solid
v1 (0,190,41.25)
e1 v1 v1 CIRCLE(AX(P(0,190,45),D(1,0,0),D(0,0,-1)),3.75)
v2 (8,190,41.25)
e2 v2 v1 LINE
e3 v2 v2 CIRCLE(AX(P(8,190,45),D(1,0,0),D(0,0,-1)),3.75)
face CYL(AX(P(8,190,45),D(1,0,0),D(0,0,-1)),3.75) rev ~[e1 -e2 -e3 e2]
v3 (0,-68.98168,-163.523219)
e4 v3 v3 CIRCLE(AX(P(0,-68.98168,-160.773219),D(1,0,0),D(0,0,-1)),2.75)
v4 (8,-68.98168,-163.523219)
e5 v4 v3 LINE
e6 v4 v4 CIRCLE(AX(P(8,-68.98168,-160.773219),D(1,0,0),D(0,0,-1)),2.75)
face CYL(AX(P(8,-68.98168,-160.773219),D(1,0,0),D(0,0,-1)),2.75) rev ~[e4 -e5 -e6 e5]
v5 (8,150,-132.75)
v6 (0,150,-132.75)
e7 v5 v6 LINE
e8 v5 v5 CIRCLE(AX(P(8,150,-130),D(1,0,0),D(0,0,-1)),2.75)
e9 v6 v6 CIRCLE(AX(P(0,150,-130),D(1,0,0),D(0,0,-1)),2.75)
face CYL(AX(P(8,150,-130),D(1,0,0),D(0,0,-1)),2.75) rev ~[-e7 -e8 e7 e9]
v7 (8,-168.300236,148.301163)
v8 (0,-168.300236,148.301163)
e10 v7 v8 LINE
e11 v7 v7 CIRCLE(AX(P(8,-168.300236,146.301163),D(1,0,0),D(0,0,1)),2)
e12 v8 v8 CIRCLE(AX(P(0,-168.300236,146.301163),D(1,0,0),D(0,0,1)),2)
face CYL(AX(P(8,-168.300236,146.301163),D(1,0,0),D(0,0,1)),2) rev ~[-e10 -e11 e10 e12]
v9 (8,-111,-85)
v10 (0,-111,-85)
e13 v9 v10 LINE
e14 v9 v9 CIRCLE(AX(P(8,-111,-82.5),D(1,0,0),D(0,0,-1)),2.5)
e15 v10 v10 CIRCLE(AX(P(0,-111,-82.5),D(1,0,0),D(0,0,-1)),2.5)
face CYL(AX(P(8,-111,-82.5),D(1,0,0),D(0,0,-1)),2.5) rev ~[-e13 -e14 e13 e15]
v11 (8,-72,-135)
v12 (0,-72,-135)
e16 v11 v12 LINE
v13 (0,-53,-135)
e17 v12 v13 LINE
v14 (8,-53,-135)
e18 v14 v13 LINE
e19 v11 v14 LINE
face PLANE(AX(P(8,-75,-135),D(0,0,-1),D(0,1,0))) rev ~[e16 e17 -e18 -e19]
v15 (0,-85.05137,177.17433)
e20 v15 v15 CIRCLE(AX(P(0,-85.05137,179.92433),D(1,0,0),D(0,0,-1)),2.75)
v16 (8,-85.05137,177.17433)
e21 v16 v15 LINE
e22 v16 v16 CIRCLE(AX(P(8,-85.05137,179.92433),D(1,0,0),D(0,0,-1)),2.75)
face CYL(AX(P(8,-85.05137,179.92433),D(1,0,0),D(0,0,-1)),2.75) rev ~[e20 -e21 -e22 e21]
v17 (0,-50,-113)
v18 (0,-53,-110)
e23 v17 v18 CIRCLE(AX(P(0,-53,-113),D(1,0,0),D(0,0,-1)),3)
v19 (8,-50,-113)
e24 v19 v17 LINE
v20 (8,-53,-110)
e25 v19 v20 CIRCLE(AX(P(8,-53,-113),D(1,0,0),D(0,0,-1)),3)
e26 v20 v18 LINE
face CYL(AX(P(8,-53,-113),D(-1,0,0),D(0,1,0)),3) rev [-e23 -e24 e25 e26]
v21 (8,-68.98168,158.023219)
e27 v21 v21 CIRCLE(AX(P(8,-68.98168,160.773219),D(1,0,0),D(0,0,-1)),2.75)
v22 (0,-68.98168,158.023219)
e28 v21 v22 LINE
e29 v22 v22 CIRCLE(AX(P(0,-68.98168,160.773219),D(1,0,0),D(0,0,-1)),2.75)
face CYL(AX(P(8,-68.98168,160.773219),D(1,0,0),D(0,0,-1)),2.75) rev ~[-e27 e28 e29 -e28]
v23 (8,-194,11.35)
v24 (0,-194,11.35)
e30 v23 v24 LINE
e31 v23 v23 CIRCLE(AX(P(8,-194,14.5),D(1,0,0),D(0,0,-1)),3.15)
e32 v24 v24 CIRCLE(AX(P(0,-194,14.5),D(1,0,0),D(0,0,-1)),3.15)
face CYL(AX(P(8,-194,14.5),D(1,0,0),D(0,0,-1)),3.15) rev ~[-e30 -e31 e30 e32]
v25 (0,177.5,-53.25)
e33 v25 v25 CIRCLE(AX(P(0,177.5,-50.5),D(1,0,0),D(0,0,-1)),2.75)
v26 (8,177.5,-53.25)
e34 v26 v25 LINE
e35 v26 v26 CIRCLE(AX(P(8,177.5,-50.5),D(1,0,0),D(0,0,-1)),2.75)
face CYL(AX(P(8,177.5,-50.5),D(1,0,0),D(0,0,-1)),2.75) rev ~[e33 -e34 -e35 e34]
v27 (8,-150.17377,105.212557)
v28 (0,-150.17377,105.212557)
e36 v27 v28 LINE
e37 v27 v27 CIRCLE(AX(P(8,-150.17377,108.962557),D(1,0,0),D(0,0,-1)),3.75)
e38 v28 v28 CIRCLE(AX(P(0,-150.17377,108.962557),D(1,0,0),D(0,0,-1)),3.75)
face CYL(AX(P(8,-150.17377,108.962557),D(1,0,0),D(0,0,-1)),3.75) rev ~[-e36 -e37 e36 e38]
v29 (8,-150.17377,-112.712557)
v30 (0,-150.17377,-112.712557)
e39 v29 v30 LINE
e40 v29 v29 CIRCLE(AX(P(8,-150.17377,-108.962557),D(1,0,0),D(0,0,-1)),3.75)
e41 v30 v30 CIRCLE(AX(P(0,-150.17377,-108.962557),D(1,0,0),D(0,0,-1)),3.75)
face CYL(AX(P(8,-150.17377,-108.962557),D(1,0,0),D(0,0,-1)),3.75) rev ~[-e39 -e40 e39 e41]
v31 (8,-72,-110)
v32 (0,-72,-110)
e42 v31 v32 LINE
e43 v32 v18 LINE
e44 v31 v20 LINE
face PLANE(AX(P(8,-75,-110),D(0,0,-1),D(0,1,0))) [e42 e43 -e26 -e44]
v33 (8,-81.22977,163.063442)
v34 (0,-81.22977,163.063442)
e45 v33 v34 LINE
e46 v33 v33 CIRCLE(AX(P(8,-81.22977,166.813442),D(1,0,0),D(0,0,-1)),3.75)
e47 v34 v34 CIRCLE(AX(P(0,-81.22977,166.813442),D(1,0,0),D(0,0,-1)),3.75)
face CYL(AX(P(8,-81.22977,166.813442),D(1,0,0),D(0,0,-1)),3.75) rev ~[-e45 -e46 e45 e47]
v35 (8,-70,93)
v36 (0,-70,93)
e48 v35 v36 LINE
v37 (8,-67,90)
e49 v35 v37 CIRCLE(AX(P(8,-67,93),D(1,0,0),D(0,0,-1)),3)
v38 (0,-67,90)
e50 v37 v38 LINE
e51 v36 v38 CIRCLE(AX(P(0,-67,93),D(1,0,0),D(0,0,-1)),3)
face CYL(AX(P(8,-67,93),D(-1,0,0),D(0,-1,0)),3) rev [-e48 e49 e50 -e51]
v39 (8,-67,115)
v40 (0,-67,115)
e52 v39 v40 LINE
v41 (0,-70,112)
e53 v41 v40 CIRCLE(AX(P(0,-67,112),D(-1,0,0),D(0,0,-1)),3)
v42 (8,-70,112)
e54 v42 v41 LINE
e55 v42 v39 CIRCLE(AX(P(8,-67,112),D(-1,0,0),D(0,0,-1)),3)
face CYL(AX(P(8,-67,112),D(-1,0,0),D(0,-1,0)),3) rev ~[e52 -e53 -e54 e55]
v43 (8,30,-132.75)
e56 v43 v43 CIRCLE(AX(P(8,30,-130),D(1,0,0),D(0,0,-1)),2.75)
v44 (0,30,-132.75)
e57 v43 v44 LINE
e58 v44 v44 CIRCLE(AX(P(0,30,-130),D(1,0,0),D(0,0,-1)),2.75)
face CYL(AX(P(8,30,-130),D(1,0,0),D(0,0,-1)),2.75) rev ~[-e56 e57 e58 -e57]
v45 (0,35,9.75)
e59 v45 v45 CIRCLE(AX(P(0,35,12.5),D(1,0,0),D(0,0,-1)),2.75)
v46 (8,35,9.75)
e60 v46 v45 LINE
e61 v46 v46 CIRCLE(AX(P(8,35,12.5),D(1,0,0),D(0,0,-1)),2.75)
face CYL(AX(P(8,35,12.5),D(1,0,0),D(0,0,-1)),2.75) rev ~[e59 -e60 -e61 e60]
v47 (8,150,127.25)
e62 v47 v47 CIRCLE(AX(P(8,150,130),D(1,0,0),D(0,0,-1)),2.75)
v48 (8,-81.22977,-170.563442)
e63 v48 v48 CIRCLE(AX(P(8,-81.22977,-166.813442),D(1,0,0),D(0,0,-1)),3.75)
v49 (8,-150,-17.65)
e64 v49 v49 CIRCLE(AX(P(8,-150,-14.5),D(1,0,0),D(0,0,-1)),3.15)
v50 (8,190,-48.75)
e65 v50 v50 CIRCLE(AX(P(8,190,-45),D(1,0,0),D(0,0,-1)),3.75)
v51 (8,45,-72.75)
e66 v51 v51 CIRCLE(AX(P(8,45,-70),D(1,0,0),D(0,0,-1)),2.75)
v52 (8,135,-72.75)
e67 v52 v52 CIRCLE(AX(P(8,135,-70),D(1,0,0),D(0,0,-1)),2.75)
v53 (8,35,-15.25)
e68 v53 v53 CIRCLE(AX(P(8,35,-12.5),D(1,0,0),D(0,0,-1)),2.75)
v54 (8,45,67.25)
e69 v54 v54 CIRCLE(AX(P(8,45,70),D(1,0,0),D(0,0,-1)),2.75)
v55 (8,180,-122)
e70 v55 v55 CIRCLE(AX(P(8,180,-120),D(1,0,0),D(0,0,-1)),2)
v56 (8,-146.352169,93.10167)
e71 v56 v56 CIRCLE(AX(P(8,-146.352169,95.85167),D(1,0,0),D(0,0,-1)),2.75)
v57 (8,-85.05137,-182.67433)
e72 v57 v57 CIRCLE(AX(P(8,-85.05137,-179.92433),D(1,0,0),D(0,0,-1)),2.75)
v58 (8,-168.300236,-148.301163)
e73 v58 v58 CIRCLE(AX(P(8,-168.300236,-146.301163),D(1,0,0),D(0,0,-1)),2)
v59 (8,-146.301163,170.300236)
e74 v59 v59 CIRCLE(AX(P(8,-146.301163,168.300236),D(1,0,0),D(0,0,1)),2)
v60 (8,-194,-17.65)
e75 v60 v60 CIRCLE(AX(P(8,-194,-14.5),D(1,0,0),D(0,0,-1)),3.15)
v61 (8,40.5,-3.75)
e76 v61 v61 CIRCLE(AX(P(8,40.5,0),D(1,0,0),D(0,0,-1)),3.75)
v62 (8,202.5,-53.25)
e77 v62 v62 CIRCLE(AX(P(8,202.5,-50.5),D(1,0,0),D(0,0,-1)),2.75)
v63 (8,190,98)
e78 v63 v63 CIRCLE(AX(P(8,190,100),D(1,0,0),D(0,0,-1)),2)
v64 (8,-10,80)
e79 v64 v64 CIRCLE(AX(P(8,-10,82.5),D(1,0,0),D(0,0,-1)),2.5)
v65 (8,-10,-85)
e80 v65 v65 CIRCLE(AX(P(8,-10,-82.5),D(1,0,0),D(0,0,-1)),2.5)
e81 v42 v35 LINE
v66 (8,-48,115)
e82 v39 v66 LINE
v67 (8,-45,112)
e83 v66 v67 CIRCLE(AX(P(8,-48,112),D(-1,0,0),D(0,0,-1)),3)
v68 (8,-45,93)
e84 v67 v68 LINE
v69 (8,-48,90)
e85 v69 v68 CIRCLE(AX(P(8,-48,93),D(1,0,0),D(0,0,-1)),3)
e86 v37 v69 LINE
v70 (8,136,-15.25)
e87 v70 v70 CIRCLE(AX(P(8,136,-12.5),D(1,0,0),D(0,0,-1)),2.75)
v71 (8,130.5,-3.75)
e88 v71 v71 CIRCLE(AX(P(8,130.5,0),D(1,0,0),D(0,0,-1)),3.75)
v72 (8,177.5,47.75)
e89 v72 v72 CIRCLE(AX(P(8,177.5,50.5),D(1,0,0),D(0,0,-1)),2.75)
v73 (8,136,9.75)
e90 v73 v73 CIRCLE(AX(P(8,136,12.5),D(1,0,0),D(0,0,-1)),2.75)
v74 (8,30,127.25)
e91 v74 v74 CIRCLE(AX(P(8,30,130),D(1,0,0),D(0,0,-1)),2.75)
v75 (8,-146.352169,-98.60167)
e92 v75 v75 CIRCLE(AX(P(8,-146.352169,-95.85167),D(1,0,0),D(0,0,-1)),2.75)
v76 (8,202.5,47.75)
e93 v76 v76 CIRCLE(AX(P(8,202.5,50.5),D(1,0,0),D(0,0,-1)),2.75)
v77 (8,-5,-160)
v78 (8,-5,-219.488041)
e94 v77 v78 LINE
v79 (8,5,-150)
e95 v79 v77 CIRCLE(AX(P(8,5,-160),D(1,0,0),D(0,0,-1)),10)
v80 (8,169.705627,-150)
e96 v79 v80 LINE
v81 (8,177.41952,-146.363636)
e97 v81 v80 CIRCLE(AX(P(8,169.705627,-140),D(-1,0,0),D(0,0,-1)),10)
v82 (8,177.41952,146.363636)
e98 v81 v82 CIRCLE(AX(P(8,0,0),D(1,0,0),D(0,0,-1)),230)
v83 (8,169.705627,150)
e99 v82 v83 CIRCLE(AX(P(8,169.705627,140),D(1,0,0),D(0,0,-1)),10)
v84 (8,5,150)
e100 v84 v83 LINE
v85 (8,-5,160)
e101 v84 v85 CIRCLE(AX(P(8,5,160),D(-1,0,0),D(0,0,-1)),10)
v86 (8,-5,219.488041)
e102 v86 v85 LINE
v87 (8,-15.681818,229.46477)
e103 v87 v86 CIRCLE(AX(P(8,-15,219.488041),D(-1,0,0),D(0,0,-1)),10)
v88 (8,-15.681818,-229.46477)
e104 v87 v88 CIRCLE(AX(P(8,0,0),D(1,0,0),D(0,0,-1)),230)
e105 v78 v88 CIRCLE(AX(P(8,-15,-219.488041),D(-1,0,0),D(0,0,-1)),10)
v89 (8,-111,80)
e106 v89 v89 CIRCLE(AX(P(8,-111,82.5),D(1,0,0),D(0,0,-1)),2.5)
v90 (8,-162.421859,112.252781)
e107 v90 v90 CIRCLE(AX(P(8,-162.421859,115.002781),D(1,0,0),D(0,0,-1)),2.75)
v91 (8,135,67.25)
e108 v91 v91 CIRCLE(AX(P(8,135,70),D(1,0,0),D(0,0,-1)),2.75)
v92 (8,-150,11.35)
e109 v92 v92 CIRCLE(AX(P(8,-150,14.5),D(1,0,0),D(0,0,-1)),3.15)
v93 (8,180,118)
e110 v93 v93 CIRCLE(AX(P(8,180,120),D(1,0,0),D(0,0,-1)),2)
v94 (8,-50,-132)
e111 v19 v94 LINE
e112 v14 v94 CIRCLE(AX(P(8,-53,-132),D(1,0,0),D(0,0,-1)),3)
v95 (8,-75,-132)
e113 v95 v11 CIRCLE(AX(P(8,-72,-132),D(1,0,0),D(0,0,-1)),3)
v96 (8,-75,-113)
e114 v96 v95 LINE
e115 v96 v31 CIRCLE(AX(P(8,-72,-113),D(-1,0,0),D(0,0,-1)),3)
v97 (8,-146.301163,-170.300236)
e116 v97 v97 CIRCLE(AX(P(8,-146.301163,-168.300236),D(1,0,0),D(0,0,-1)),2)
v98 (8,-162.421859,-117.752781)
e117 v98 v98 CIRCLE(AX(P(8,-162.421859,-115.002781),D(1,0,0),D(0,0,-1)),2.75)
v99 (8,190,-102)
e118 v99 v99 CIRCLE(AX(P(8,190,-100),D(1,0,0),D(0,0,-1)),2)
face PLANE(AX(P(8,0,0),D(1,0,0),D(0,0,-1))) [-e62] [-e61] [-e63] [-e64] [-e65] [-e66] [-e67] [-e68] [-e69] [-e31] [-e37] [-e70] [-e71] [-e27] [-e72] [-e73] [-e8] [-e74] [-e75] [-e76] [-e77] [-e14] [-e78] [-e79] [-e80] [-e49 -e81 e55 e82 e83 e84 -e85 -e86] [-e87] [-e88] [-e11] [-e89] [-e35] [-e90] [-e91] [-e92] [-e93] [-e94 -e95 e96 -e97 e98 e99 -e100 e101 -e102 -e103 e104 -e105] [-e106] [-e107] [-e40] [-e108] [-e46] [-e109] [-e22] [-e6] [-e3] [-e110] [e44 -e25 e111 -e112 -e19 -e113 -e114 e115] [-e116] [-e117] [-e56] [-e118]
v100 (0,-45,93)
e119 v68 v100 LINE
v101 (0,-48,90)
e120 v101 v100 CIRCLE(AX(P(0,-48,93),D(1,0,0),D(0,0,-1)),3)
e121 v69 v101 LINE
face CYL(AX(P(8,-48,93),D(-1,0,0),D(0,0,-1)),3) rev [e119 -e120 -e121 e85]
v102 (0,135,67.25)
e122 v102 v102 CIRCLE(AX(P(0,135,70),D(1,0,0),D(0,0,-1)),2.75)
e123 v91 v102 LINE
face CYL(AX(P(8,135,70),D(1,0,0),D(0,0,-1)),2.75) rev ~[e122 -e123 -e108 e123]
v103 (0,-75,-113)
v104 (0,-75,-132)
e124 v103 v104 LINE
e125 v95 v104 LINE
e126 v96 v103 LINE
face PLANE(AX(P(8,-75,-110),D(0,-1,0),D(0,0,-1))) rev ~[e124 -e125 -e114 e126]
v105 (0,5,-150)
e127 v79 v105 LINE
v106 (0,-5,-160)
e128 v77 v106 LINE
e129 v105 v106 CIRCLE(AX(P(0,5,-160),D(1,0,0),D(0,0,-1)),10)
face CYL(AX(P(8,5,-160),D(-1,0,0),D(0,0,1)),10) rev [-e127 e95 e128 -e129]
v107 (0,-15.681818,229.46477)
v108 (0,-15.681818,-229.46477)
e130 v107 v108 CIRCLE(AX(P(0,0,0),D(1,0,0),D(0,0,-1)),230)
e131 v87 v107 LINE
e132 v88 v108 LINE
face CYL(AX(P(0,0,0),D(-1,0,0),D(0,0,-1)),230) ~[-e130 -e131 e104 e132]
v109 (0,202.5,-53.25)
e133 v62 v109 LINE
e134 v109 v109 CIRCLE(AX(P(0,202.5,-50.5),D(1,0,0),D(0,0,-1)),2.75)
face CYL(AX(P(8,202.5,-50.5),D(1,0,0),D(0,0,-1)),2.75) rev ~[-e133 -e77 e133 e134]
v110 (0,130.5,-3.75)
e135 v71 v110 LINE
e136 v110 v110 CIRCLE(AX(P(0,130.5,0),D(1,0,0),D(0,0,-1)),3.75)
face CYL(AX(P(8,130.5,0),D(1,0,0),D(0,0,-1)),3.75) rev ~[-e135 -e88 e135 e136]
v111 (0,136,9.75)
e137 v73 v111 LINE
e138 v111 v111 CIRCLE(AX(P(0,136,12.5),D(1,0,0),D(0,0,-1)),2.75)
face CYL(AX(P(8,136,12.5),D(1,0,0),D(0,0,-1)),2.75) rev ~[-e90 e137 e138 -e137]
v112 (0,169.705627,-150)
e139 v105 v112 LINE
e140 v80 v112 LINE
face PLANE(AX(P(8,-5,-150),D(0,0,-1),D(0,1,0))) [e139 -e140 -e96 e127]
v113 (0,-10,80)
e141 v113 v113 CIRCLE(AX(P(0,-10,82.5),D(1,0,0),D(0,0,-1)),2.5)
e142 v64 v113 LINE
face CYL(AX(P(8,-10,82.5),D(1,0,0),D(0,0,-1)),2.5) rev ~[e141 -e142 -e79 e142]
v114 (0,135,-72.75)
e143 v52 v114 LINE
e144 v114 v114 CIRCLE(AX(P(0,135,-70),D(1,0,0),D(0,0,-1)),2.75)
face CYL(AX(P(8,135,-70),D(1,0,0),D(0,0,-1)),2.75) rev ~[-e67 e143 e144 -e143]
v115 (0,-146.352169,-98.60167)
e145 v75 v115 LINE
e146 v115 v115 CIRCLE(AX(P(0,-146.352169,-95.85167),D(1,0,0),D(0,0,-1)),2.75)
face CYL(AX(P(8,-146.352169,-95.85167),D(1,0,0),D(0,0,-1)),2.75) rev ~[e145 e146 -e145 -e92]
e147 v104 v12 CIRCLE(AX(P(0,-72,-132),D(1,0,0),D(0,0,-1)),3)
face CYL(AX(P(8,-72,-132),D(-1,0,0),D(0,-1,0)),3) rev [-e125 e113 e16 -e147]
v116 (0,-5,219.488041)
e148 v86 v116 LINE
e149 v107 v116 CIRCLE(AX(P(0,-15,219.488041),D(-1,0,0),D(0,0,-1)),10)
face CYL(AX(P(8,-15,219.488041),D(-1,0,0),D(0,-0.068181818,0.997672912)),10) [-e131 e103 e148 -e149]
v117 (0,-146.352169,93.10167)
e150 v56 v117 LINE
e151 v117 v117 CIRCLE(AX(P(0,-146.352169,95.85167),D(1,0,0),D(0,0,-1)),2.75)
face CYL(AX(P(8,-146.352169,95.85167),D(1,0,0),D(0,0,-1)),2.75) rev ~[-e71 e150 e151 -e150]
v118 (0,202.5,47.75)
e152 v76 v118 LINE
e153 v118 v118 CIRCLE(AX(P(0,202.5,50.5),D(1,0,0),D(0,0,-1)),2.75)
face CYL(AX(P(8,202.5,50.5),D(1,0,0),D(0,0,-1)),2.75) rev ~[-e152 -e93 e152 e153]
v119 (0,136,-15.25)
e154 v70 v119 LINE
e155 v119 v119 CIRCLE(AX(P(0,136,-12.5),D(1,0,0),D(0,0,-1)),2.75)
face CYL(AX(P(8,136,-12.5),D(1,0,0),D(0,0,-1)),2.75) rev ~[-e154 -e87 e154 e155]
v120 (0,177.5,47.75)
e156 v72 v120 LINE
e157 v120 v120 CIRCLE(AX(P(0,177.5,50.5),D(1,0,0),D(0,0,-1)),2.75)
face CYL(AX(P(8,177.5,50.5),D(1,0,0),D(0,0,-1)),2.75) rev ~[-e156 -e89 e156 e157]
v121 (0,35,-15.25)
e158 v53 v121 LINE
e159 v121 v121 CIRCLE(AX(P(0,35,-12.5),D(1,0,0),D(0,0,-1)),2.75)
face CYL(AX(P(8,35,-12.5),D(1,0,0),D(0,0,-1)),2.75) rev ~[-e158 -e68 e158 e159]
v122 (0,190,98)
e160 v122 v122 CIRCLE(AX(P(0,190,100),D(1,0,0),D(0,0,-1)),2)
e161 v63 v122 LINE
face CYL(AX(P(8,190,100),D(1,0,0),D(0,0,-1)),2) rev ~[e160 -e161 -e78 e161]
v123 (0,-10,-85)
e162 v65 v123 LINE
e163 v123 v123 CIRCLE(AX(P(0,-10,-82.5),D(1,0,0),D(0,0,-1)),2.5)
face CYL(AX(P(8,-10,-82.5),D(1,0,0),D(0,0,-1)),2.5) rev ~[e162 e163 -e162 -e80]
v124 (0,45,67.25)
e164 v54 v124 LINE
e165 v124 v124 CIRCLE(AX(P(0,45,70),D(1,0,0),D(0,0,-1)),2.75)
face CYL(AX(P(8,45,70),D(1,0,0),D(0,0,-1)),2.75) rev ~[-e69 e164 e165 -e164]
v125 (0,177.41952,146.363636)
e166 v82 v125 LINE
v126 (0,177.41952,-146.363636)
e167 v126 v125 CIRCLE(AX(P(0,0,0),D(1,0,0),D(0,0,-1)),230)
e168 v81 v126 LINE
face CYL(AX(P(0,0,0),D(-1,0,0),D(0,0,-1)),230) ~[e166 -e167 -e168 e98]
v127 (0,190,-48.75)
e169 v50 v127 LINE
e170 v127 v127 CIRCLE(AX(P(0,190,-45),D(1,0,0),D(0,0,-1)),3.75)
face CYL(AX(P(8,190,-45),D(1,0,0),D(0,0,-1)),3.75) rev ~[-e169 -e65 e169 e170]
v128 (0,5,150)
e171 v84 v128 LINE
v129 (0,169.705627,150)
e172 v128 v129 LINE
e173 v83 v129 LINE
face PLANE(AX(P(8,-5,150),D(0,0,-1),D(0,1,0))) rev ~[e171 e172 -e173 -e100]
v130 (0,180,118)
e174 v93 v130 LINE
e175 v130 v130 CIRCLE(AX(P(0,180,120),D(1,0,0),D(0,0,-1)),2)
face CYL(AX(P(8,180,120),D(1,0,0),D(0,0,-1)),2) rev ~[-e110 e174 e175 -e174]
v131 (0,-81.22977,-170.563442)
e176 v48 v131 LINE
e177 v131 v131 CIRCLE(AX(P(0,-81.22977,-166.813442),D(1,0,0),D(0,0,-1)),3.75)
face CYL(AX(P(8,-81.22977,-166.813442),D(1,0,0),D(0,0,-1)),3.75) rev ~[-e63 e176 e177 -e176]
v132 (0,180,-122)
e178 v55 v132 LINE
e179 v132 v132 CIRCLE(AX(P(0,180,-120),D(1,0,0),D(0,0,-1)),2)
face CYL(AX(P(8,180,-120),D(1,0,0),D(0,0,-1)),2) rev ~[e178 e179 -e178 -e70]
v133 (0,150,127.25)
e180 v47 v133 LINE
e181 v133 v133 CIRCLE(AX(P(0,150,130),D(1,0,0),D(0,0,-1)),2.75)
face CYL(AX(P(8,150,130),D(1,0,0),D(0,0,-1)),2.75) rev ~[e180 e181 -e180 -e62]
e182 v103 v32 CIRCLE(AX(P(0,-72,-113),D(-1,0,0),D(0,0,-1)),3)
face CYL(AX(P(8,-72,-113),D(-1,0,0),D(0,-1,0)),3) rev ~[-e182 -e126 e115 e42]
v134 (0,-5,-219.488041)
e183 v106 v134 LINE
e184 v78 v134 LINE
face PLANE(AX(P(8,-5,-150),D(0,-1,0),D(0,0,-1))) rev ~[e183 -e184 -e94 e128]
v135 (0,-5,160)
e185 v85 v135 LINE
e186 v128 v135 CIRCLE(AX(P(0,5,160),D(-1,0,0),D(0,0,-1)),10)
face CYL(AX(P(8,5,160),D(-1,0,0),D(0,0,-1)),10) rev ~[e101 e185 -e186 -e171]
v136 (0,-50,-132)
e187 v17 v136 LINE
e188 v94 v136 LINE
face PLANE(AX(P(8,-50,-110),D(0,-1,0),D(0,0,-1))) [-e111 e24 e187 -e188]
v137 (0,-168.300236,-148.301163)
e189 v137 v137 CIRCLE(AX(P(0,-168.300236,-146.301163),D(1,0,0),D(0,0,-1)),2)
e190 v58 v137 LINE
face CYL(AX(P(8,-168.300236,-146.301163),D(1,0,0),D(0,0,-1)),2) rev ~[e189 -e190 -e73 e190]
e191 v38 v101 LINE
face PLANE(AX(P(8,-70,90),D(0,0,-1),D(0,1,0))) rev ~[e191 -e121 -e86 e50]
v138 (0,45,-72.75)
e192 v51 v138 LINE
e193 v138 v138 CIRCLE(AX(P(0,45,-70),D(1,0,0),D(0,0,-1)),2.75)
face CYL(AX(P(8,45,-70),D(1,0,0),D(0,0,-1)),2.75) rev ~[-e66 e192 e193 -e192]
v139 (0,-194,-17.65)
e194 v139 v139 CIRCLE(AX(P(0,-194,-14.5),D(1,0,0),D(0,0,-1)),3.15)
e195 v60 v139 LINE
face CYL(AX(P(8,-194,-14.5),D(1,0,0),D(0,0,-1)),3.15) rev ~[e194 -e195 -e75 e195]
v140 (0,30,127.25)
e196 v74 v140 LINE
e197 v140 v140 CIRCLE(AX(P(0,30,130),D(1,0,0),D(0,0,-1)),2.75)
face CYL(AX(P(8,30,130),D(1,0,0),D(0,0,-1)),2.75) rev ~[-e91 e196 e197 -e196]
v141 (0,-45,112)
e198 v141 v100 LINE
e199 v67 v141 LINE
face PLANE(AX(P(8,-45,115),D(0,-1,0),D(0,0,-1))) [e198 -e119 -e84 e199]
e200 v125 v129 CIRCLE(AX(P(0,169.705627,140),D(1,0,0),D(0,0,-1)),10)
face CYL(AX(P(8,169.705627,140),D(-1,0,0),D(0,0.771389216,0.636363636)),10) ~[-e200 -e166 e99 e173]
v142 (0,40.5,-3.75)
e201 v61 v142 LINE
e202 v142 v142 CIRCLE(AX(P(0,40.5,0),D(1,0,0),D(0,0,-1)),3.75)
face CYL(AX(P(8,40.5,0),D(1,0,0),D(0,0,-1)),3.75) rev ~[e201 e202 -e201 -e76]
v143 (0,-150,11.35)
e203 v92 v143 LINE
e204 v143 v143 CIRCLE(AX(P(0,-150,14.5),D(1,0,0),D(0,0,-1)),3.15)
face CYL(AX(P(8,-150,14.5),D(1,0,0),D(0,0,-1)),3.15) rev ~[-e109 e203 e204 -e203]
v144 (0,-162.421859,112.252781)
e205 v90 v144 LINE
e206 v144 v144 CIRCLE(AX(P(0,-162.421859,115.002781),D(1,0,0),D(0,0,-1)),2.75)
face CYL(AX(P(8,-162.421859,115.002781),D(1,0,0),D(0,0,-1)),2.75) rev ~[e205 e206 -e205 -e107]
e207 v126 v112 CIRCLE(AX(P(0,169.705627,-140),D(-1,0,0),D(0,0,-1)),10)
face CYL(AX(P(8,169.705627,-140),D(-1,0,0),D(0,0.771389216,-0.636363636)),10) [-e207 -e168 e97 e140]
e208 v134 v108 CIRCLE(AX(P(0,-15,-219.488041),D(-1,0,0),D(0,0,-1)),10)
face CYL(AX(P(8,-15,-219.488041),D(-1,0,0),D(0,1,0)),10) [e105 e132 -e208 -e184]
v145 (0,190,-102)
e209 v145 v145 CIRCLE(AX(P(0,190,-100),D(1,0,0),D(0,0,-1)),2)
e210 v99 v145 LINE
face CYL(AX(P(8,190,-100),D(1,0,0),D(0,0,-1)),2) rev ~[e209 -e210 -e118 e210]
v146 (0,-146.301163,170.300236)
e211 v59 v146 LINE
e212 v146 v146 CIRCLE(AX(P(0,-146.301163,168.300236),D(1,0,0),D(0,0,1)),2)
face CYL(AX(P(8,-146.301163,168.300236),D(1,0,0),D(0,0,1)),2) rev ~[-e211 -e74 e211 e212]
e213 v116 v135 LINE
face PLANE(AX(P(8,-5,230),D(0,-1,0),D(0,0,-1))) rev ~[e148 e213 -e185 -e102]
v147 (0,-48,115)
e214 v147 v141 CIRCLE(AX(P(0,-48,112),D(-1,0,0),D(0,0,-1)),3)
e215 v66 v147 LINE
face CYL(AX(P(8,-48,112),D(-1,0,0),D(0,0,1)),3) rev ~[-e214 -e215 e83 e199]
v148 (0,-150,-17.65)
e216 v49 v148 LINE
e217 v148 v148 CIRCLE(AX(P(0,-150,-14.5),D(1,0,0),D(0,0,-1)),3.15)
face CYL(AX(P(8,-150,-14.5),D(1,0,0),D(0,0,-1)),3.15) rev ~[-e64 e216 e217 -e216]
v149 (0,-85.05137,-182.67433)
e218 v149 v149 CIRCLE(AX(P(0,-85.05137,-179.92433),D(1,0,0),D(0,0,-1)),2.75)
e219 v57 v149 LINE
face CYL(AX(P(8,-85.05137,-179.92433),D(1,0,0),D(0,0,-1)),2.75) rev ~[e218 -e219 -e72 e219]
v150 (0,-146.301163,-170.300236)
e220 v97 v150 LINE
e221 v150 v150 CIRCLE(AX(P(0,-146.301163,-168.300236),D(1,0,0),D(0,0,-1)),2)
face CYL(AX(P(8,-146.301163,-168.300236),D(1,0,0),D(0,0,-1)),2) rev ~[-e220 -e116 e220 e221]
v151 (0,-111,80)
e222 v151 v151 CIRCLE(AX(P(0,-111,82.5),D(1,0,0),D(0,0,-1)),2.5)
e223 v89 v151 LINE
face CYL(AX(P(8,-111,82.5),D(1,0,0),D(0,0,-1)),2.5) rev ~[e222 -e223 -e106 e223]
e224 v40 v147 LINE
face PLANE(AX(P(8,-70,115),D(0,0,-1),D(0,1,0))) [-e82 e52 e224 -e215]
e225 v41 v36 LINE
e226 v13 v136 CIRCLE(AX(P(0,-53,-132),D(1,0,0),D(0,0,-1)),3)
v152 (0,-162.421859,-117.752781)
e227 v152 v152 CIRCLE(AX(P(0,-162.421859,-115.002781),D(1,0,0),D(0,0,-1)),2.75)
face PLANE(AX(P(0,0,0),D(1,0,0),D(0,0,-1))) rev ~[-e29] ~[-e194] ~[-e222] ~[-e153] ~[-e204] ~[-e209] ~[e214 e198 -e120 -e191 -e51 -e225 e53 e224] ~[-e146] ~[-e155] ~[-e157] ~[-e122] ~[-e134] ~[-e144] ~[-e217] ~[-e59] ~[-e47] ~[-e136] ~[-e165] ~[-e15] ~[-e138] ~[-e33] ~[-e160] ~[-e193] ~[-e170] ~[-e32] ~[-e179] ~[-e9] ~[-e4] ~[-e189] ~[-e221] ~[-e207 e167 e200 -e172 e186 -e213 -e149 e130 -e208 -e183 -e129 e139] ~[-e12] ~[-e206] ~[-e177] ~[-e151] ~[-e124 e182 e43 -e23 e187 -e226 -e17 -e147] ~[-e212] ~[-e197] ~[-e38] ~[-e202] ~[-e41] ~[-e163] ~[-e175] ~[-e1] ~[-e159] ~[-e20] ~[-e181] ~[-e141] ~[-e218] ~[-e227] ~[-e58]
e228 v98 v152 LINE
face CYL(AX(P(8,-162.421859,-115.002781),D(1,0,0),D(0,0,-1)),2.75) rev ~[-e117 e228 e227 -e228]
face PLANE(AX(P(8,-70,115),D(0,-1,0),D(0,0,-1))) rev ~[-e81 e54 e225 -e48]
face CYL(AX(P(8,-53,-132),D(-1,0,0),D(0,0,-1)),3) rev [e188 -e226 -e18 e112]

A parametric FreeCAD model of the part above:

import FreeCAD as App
import Part
import Sketcher


def edges_at(feature, points):
    """Names of the edges that pass closest to the given points."""
    edges = feature.Shape.Edges
    near = lambda p: min(range(len(edges)), key=lambda i: edges[i].distToShape(Part.Vertex(*p))[0])
    return sorted({f"Edge{near(p) + 1}" for p in points})

doc = App.newDocument("Part")
params = doc.addObject("Spreadsheet::Sheet", "Params")
for row, (alias, value) in enumerate([
    ("sketch1_diameter", "460 mm"),
    ("pad1_length", "8 mm"),
    ("sketch2_width", "200 mm"),
    ("sketch2_height", "80 mm"),
    ("pocket1_length", "12 mm"),
    ("sketch3_diameter", "5.5 mm"),
    ("pocket2_length", "12 mm"),
    ("sketch4_diameter", "6.3 mm"),
    ("pocket3_length", "12 mm"),
    ("sketch5_diameter", "7.5 mm"),
    ("sketch5_diameter2", "5.5 mm"),
    ("pocket4_length", "10 mm"),
    ("fillet_radius", "10 mm"),
    ("sketch6_width", "25 mm"),
    ("pocket5_length", "10 mm"),
    ("sketch7_diameter", "5 mm"),
    ("pocket6_length", "10 mm"),
    ("sketch8_width", "25 mm"),
    ("pocket7_length", "10 mm"),
    ("fillet2_radius", "3 mm"),
    ("sketch9_diameter", "4 mm"),
    ("sketch10_diameter", "4 mm"),
    ("pocket9_length", "25 mm"),
    ("fillet3_radius", "3 mm"),
], start=1):
    params.set(f"A{row}", alias)
    params.set(f"B{row}", "=" + value)
    params.setAlias(f"B{row}", alias)

body = doc.addObject("PartDesign::Body", "Body")

sketch1 = body.newObject("Sketcher::SketchObject", "Sketch")
sketch1.AttachmentSupport = (doc.getObject("YZ_Plane"), [""])
sketch1.MapMode = "FlatFace"
sketch1.addGeometry(Part.Circle(App.Vector(0, 0, 0), App.Vector(0, 0, 1), 230), False)
sketch1.addConstraint(Sketcher.Constraint("Coincident", 0, 3, -1, 1))
sketch1.addConstraint(Sketcher.Constraint("Diameter", 0, 460.0))
sketch1.setExpression("Constraints[1]", "Params.sketch1_diameter")
pad1 = body.newObject("PartDesign::Pad", "Pad")
pad1.Profile = sketch1
pad1.setExpression("Length", "Params.pad1_length")

sketch2 = body.newObject("Sketcher::SketchObject", "Sketch001")
sketch2.AttachmentSupport = (doc.getObject("YZ_Plane"), [""])
sketch2.MapMode = "FlatFace"
sketch2.AttachmentOffset = App.Placement(App.Vector(0, 0, 8), App.Rotation())
sketch2.addGeometry(Part.LineSegment(App.Vector(195, 230, 0), App.Vector(-5, 230, 0)), False)
sketch2.addGeometry(Part.LineSegment(App.Vector(-5, 230, 0), App.Vector(-5, 150, 0)), False)
sketch2.addGeometry(Part.LineSegment(App.Vector(-5, 150, 0), App.Vector(195, 150, 0)), False)
sketch2.addGeometry(Part.LineSegment(App.Vector(195, 150, 0), App.Vector(195, 230, 0)), False)
sketch2.addGeometry(Part.LineSegment(App.Vector(195, -150, 0), App.Vector(-5, -150, 0)), False)
sketch2.addGeometry(Part.LineSegment(App.Vector(-5, -150, 0), App.Vector(-5, -230, 0)), False)
sketch2.addGeometry(Part.LineSegment(App.Vector(-5, -230, 0), App.Vector(195, -230, 0)), False)
sketch2.addGeometry(Part.LineSegment(App.Vector(195, -230, 0), App.Vector(195, -150, 0)), False)
sketch2.addConstraint(Sketcher.Constraint("Coincident", 0, 2, 1, 1))
sketch2.addConstraint(Sketcher.Constraint("Coincident", 1, 2, 2, 1))
sketch2.addConstraint(Sketcher.Constraint("Coincident", 2, 2, 3, 1))
sketch2.addConstraint(Sketcher.Constraint("Coincident", 3, 2, 0, 1))
sketch2.addConstraint(Sketcher.Constraint("Coincident", 4, 2, 5, 1))
sketch2.addConstraint(Sketcher.Constraint("Coincident", 5, 2, 6, 1))
sketch2.addConstraint(Sketcher.Constraint("Coincident", 6, 2, 7, 1))
sketch2.addConstraint(Sketcher.Constraint("Coincident", 7, 2, 4, 1))
sketch2.addConstraint(Sketcher.Constraint("Horizontal", 0))
sketch2.addConstraint(Sketcher.Constraint("Vertical", 1))
sketch2.addConstraint(Sketcher.Constraint("Horizontal", 2))
sketch2.addConstraint(Sketcher.Constraint("Vertical", 3))
sketch2.addConstraint(Sketcher.Constraint("Horizontal", 4))
sketch2.addConstraint(Sketcher.Constraint("Vertical", 5))
sketch2.addConstraint(Sketcher.Constraint("Horizontal", 6))
sketch2.addConstraint(Sketcher.Constraint("Vertical", 7))
sketch2.addConstraint(Sketcher.Constraint("Symmetric", 1, 2, 4, 2, -1))
sketch2.addConstraint(Sketcher.Constraint("Symmetric", 3, 2, 6, 2, -1))
sketch2.addConstraint(Sketcher.Constraint("DistanceX", 0, 2, 0, 1, 200.0))
sketch2.addConstraint(Sketcher.Constraint("DistanceY", 1, 2, 1, 1, 80.0))
sketch2.addConstraint(Sketcher.Constraint("DistanceX", 0, 2, -1, 1, 5.0))
sketch2.addConstraint(Sketcher.Constraint("DistanceY", -1, 1, 0, 2, 230.0))
sketch2.setExpression("Constraints[18]", "Params.sketch2_width")
sketch2.setExpression("Constraints[19]", "Params.sketch2_height")
pocket1 = body.newObject("PartDesign::Pocket", "Pocket")
pocket1.Profile = sketch2
pocket1.setExpression("Length", "Params.pocket1_length")

sketch3 = body.newObject("Sketcher::SketchObject", "Sketch002")
sketch3.AttachmentSupport = (doc.getObject("YZ_Plane"), [""])
sketch3.MapMode = "FlatFace"
sketch3.AttachmentOffset = App.Placement(App.Vector(0, 0, 8), App.Rotation())
sketch3.addGeometry(Part.Circle(App.Vector(150, 130, 0), App.Vector(0, 0, 1), 2.75), False)
sketch3.addGeometry(Part.Circle(App.Vector(30, 130, 0), App.Vector(0, 0, 1), 2.75), False)
sketch3.addGeometry(Part.Circle(App.Vector(30, -130, 0), App.Vector(0, 0, 1), 2.75), False)
sketch3.addGeometry(Part.Circle(App.Vector(150, -130, 0), App.Vector(0, 0, 1), 2.75), False)
sketch3.addGeometry(Part.Circle(App.Vector(135, 70, 0), App.Vector(0, 0, 1), 2.75), False)
sketch3.addGeometry(Part.Circle(App.Vector(45, 70, 0), App.Vector(0, 0, 1), 2.75), False)
sketch3.addGeometry(Part.Circle(App.Vector(135, -70, 0), App.Vector(0, 0, 1), 2.75), False)
sketch3.addGeometry(Part.Circle(App.Vector(45, -70, 0), App.Vector(0, 0, 1), 2.75), False)
sketch3.addConstraint(Sketcher.Constraint("Equal", 0, 1))
sketch3.addConstraint(Sketcher.Constraint("Equal", 1, 2))
sketch3.addConstraint(Sketcher.Constraint("Equal", 2, 3))
sketch3.addConstraint(Sketcher.Constraint("Equal", 3, 4))
sketch3.addConstraint(Sketcher.Constraint("Equal", 4, 5))
sketch3.addConstraint(Sketcher.Constraint("Equal", 5, 6))
sketch3.addConstraint(Sketcher.Constraint("Equal", 6, 7))
sketch3.addConstraint(Sketcher.Constraint("Symmetric", 1, 3, 2, 3, -1))
sketch3.addConstraint(Sketcher.Constraint("Symmetric", 0, 3, 3, 3, -1))
sketch3.addConstraint(Sketcher.Constraint("Symmetric", 4, 3, 6, 3, -1))
sketch3.addConstraint(Sketcher.Constraint("Symmetric", 5, 3, 7, 3, -1))
sketch3.addConstraint(Sketcher.Constraint("Horizontal", 0, 3, 1, 3))
sketch3.addConstraint(Sketcher.Constraint("Horizontal", 4, 3, 5, 3))
sketch3.addConstraint(Sketcher.Constraint("Diameter", 0, 5.5))
sketch3.addConstraint(Sketcher.Constraint("DistanceX", -1, 1, 0, 3, 150.0))
sketch3.addConstraint(Sketcher.Constraint("DistanceY", -1, 1, 0, 3, 130.0))
sketch3.addConstraint(Sketcher.Constraint("DistanceX", -1, 1, 1, 3, 30.0))
sketch3.addConstraint(Sketcher.Constraint("DistanceX", -1, 1, 4, 3, 135.0))
sketch3.addConstraint(Sketcher.Constraint("DistanceY", -1, 1, 4, 3, 70.0))
sketch3.addConstraint(Sketcher.Constraint("DistanceX", -1, 1, 5, 3, 45.0))
sketch3.setExpression("Constraints[13]", "Params.sketch3_diameter")
pocket2 = body.newObject("PartDesign::Pocket", "Pocket001")
pocket2.Profile = sketch3
pocket2.setExpression("Length", "Params.pocket2_length")

sketch4 = body.newObject("Sketcher::SketchObject", "Sketch003")
sketch4.AttachmentSupport = (doc.getObject("YZ_Plane"), [""])
sketch4.MapMode = "FlatFace"
sketch4.AttachmentOffset = App.Placement(App.Vector(0, 0, 8), App.Rotation())
sketch4.addGeometry(Part.Circle(App.Vector(-150, 14.5, 0), App.Vector(0, 0, 1), 3.15), False)
sketch4.addGeometry(Part.Circle(App.Vector(-150, -14.5, 0), App.Vector(0, 0, 1), 3.15), False)
sketch4.addGeometry(Part.Circle(App.Vector(-194, -14.5, 0), App.Vector(0, 0, 1), 3.15), False)
sketch4.addGeometry(Part.Circle(App.Vector(-194, 14.5, 0), App.Vector(0, 0, 1), 3.15), False)
sketch4.addConstraint(Sketcher.Constraint("Equal", 0, 1))
sketch4.addConstraint(Sketcher.Constraint("Equal", 1, 2))
sketch4.addConstraint(Sketcher.Constraint("Equal", 2, 3))
sketch4.addConstraint(Sketcher.Constraint("Symmetric", 0, 3, 1, 3, -1))
sketch4.addConstraint(Sketcher.Constraint("Symmetric", 2, 3, 3, 3, -1))
sketch4.addConstraint(Sketcher.Constraint("Horizontal", 1, 3, 2, 3))
sketch4.addConstraint(Sketcher.Constraint("Diameter", 0, 6.3))
sketch4.addConstraint(Sketcher.Constraint("DistanceX", 0, 3, -1, 1, 150.0))
sketch4.addConstraint(Sketcher.Constraint("DistanceX", 2, 3, -1, 1, 194.0))
sketch4.addConstraint(Sketcher.Constraint("DistanceY", 1, 3, 0, 3, 29.0))
sketch4.setExpression("Constraints[6]", "Params.sketch4_diameter")
pocket3 = body.newObject("PartDesign::Pocket", "Pocket002")
pocket3.Profile = sketch4
pocket3.setExpression("Length", "Params.pocket3_length")

sketch5 = body.newObject("Sketcher::SketchObject", "Sketch004")
sketch5.AttachmentSupport = (doc.getObject("YZ_Plane"), [""])
sketch5.MapMode = "FlatFace"
sketch5.AttachmentOffset = App.Placement(App.Vector(0, 0, 8), App.Rotation())
sketch5.addGeometry(Part.Circle(App.Vector(-81.22977, -166.813442, 0), App.Vector(0, 0, 1), 3.75), False)
sketch5.addGeometry(Part.Circle(App.Vector(-150.17377, -108.962557, 0), App.Vector(0, 0, 1), 3.75), False)
sketch5.addGeometry(Part.Circle(App.Vector(-150.17377, 108.962557, 0), App.Vector(0, 0, 1), 3.75), False)
sketch5.addGeometry(Part.Circle(App.Vector(-81.22977, 166.813442, 0), App.Vector(0, 0, 1), 3.75), False)
sketch5.addGeometry(Part.Circle(App.Vector(190, 45, 0), App.Vector(0, 0, 1), 3.75), False)
sketch5.addGeometry(Part.Circle(App.Vector(190, -45, 0), App.Vector(0, 0, 1), 3.75), False)
sketch5.addGeometry(Part.Circle(App.Vector(35, 12.5, 0), App.Vector(0, 0, 1), 2.75), False)
sketch5.addGeometry(Part.Circle(App.Vector(35, -12.5, 0), App.Vector(0, 0, 1), 2.75), False)
sketch5.addGeometry(Part.Circle(App.Vector(-146.352169, -95.85167, 0), App.Vector(0, 0, 1), 2.75), False)
sketch5.addGeometry(Part.Circle(App.Vector(-68.98168, -160.773219, 0), App.Vector(0, 0, 1), 2.75), False)
sketch5.addGeometry(Part.Circle(App.Vector(-85.05137, -179.92433, 0), App.Vector(0, 0, 1), 2.75), False)
sketch5.addGeometry(Part.Circle(App.Vector(-162.421859, -115.002781, 0), App.Vector(0, 0, 1), 2.75), False)
sketch5.addGeometry(Part.Circle(App.Vector(-85.05137, 179.92433, 0), App.Vector(0, 0, 1), 2.75), False)
sketch5.addGeometry(Part.Circle(App.Vector(-68.98168, 160.773219, 0), App.Vector(0, 0, 1), 2.75), False)
sketch5.addGeometry(Part.Circle(App.Vector(-146.352169, 95.85167, 0), App.Vector(0, 0, 1), 2.75), False)
sketch5.addGeometry(Part.Circle(App.Vector(-162.421859, 115.002781, 0), App.Vector(0, 0, 1), 2.75), False)
sketch5.addGeometry(Part.Circle(App.Vector(202.5, -50.5, 0), App.Vector(0, 0, 1), 2.75), False)
sketch5.addGeometry(Part.Circle(App.Vector(202.5, 50.5, 0), App.Vector(0, 0, 1), 2.75), False)
sketch5.addGeometry(Part.Circle(App.Vector(177.5, -50.5, 0), App.Vector(0, 0, 1), 2.75), False)
sketch5.addGeometry(Part.Circle(App.Vector(177.5, 50.5, 0), App.Vector(0, 0, 1), 2.75), False)
sketch5.addGeometry(Part.Circle(App.Vector(136, -12.5, 0), App.Vector(0, 0, 1), 2.75), False)
sketch5.addGeometry(Part.Circle(App.Vector(136, 12.5, 0), App.Vector(0, 0, 1), 2.75), False)
sketch5.addGeometry(Part.Circle(App.Vector(130.5, 0, 0), App.Vector(0, 0, 1), 3.75), False)
sketch5.addGeometry(Part.Circle(App.Vector(40.5, 0, 0), App.Vector(0, 0, 1), 3.75), False)
sketch5.addConstraint(Sketcher.Constraint("Equal", 0, 1))
sketch5.addConstraint(Sketcher.Constraint("Equal", 1, 2))
sketch5.addConstraint(Sketcher.Constraint("Equal", 2, 3))
sketch5.addConstraint(Sketcher.Constraint("Equal", 3, 4))
sketch5.addConstraint(Sketcher.Constraint("Equal", 4, 5))
sketch5.addConstraint(Sketcher.Constraint("Equal", 6, 7))
sketch5.addConstraint(Sketcher.Constraint("Equal", 7, 8))
sketch5.addConstraint(Sketcher.Constraint("Equal", 8, 9))
sketch5.addConstraint(Sketcher.Constraint("Equal", 9, 10))
sketch5.addConstraint(Sketcher.Constraint("Equal", 10, 11))
sketch5.addConstraint(Sketcher.Constraint("Equal", 11, 12))
sketch5.addConstraint(Sketcher.Constraint("Equal", 12, 13))
sketch5.addConstraint(Sketcher.Constraint("Equal", 13, 14))
sketch5.addConstraint(Sketcher.Constraint("Equal", 14, 15))
sketch5.addConstraint(Sketcher.Constraint("Equal", 15, 16))
sketch5.addConstraint(Sketcher.Constraint("Equal", 16, 17))
sketch5.addConstraint(Sketcher.Constraint("Equal", 17, 18))
sketch5.addConstraint(Sketcher.Constraint("Equal", 18, 19))
sketch5.addConstraint(Sketcher.Constraint("Equal", 19, 20))
sketch5.addConstraint(Sketcher.Constraint("Equal", 20, 21))
sketch5.addConstraint(Sketcher.Constraint("Equal", 5, 22))
sketch5.addConstraint(Sketcher.Constraint("Equal", 22, 23))
sketch5.addConstraint(Sketcher.Constraint("Symmetric", 1, 3, 2, 3, -1))
sketch5.addConstraint(Sketcher.Constraint("Symmetric", 0, 3, 3, 3, -1))
sketch5.addConstraint(Sketcher.Constraint("Symmetric", 4, 3, 5, 3, -1))
sketch5.addConstraint(Sketcher.Constraint("Symmetric", 6, 3, 7, 3, -1))
sketch5.addConstraint(Sketcher.Constraint("Symmetric", 10, 3, 12, 3, -1))
sketch5.addConstraint(Sketcher.Constraint("Symmetric", 9, 3, 13, 3, -1))
sketch5.addConstraint(Sketcher.Constraint("Symmetric", 8, 3, 14, 3, -1))
sketch5.addConstraint(Sketcher.Constraint("Symmetric", 11, 3, 15, 3, -1))
sketch5.addConstraint(Sketcher.Constraint("Symmetric", 16, 3, 17, 3, -1))
sketch5.addConstraint(Sketcher.Constraint("Symmetric", 18, 3, 19, 3, -1))
sketch5.addConstraint(Sketcher.Constraint("Symmetric", 20, 3, 21, 3, -1))
sketch5.addConstraint(Sketcher.Constraint("PointOnObject", 22, 3, -1))
sketch5.addConstraint(Sketcher.Constraint("PointOnObject", 23, 3, -1))
sketch5.addConstraint(Sketcher.Constraint("Horizontal", 16, 3, 18, 3))
sketch5.addConstraint(Sketcher.Constraint("Horizontal", 7, 3, 20, 3))
sketch5.addConstraint(Sketcher.Constraint("Diameter", 0, 7.5))
sketch5.addConstraint(Sketcher.Constraint("Diameter", 6, 5.5))
sketch5.addConstraint(Sketcher.Constraint("DistanceX", -1, 1, 4, 3, 190.0))
sketch5.addConstraint(Sketcher.Constraint("DistanceY", -1, 1, 4, 3, 45.0))
sketch5.addConstraint(Sketcher.Constraint("DistanceX", -1, 1, 6, 3, 35.0))
sketch5.addConstraint(Sketcher.Constraint("DistanceX", -1, 1, 20, 3, 136.0))
sketch5.addConstraint(Sketcher.Constraint("DistanceY", 7, 3, 6, 3, 25.0))
sketch5.addConstraint(Sketcher.Constraint("DistanceY", 16, 3, 7, 3, 38.0))
sketch5.addConstraint(Sketcher.Constraint("DistanceX", 18, 3, 16, 3, 25.0))
sketch5.addConstraint(Sketcher.Constraint("DistanceX", 22, 3, 18, 3, 47.0))
sketch5.addConstraint(Sketcher.Constraint("DistanceX", 23, 3, 22, 3, 90.0))
sketch5.addConstraint(Sketcher.Constraint("DistanceX", -1, 1, 16, 3, 202.5))
sketch5.addConstraint(Sketcher.Constraint("DistanceX", 1, 3, 0, 3, 68.944))
sketch5.addConstraint(Sketcher.Constraint("DistanceY", 0, 3, 2, 3, 275.776))
sketch5.addConstraint(Sketcher.Constraint("DistanceY", 8, 3, 12, 3, 275.776))
sketch5.addConstraint(Sketcher.Constraint("DistanceX", 1, 3, 8, 3, 3.821601))
sketch5.addConstraint(Sketcher.Constraint("DistanceX", 10, 3, 0, 3, 3.821601))
sketch5.addConstraint(Sketcher.Constraint("DistanceX", 0, 3, -1, 1, 81.22977))
sketch5.addConstraint(Sketcher.Constraint("DistanceY", 8, 3, -1, 1, 95.85167))
sketch5.addConstraint(Sketcher.Constraint("DistanceX", 9, 3, -1, 1, 68.98168))
sketch5.addConstraint(Sketcher.Constraint("DistanceY", 9, 3, -1, 1, 160.773219))
sketch5.addConstraint(Sketcher.Constraint("DistanceX", 11, 3, -1, 1, 162.421859))
sketch5.addConstraint(Sketcher.Constraint("DistanceY", 11, 3, -1, 1, 115.002781))
sketch5.addConstraint(Sketcher.Constraint("DistanceY", 9, 3, 1, 3, 51.810661))
sketch5.setExpression("Constraints[37]", "Params.sketch5_diameter")
sketch5.setExpression("Constraints[38]", "Params.sketch5_diameter2")
pocket4 = body.newObject("PartDesign::Pocket", "Pocket003")
pocket4.Profile = sketch5
pocket4.setExpression("Length", "Params.pocket4_length")
doc.recompute()

fillet = body.newObject("PartDesign::Fillet", "Fillet")
fillet.Base = (pocket4, edges_at(pocket4, [
    (4, 174.356, -150),
    (4, -5, -150),
    (4, -5, -229.946),
    (4, 174.356, 150),
    (4, -5, 229.946),
    (4, -5, 150),
]))
fillet.setExpression("Radius", "Params.fillet_radius")

sketch6 = body.newObject("Sketcher::SketchObject", "Sketch005")
sketch6.AttachmentSupport = (doc.getObject("YZ_Plane"), [""])
sketch6.MapMode = "FlatFace"
sketch6.AttachmentOffset = App.Placement(App.Vector(0, 0, 8), App.Rotation())
sketch6.addGeometry(Part.LineSegment(App.Vector(-45, 115, 0), App.Vector(-70, 115, 0)), False)
sketch6.addGeometry(Part.LineSegment(App.Vector(-70, 115, 0), App.Vector(-70, 90, 0)), False)
sketch6.addGeometry(Part.LineSegment(App.Vector(-70, 90, 0), App.Vector(-45, 90, 0)), False)
sketch6.addGeometry(Part.LineSegment(App.Vector(-45, 90, 0), App.Vector(-45, 115, 0)), False)
sketch6.addConstraint(Sketcher.Constraint("Coincident", 0, 2, 1, 1))
sketch6.addConstraint(Sketcher.Constraint("Coincident", 1, 2, 2, 1))
sketch6.addConstraint(Sketcher.Constraint("Coincident", 2, 2, 3, 1))
sketch6.addConstraint(Sketcher.Constraint("Coincident", 3, 2, 0, 1))
sketch6.addConstraint(Sketcher.Constraint("Horizontal", 0))
sketch6.addConstraint(Sketcher.Constraint("Vertical", 1))
sketch6.addConstraint(Sketcher.Constraint("Horizontal", 2))
sketch6.addConstraint(Sketcher.Constraint("Vertical", 3))
sketch6.addConstraint(Sketcher.Constraint("Equal", 2, 1))
sketch6.addConstraint(Sketcher.Constraint("DistanceX", 0, 2, 0, 1, 25.0))
sketch6.addConstraint(Sketcher.Constraint("DistanceX", 0, 2, -1, 1, 70.0))
sketch6.addConstraint(Sketcher.Constraint("DistanceY", -1, 1, 0, 2, 115.0))
sketch6.setExpression("Constraints[9]", "Params.sketch6_width")
pocket5 = body.newObject("PartDesign::Pocket", "Pocket004")
pocket5.Profile = sketch6
pocket5.setExpression("Length", "Params.pocket5_length")

sketch7 = body.newObject("Sketcher::SketchObject", "Sketch006")
sketch7.AttachmentSupport = (doc.getObject("YZ_Plane"), [""])
sketch7.MapMode = "FlatFace"
sketch7.AttachmentOffset = App.Placement(App.Vector(0, 0, 8), App.Rotation())
sketch7.addGeometry(Part.Circle(App.Vector(-10, -82.5, 0), App.Vector(0, 0, 1), 2.5), False)
sketch7.addGeometry(Part.Circle(App.Vector(-111, -82.5, 0), App.Vector(0, 0, 1), 2.5), False)
sketch7.addGeometry(Part.Circle(App.Vector(-10, 82.5, 0), App.Vector(0, 0, 1), 2.5), False)
sketch7.addGeometry(Part.Circle(App.Vector(-111, 82.5, 0), App.Vector(0, 0, 1), 2.5), False)
sketch7.addConstraint(Sketcher.Constraint("Equal", 0, 1))
sketch7.addConstraint(Sketcher.Constraint("Equal", 1, 2))
sketch7.addConstraint(Sketcher.Constraint("Equal", 2, 3))
sketch7.addConstraint(Sketcher.Constraint("Symmetric", 0, 3, 2, 3, -1))
sketch7.addConstraint(Sketcher.Constraint("Symmetric", 1, 3, 3, 3, -1))
sketch7.addConstraint(Sketcher.Constraint("Horizontal", 0, 3, 1, 3))
sketch7.addConstraint(Sketcher.Constraint("Diameter", 0, 5.0))
sketch7.addConstraint(Sketcher.Constraint("DistanceX", 0, 3, -1, 1, 10.0))
sketch7.addConstraint(Sketcher.Constraint("DistanceX", 1, 3, -1, 1, 111.0))
sketch7.addConstraint(Sketcher.Constraint("DistanceY", 0, 3, 2, 3, 165.0))
sketch7.setExpression("Constraints[6]", "Params.sketch7_diameter")
pocket6 = body.newObject("PartDesign::Pocket", "Pocket005")
pocket6.Profile = sketch7
pocket6.setExpression("Length", "Params.pocket6_length")

sketch8 = body.newObject("Sketcher::SketchObject", "Sketch007")
sketch8.AttachmentSupport = (doc.getObject("YZ_Plane"), [""])
sketch8.MapMode = "FlatFace"
sketch8.AttachmentOffset = App.Placement(App.Vector(0, 0, 8), App.Rotation())
sketch8.addGeometry(Part.LineSegment(App.Vector(-50, -110, 0), App.Vector(-75, -110, 0)), False)
sketch8.addGeometry(Part.LineSegment(App.Vector(-75, -110, 0), App.Vector(-75, -135, 0)), False)
sketch8.addGeometry(Part.LineSegment(App.Vector(-75, -135, 0), App.Vector(-50, -135, 0)), False)
sketch8.addGeometry(Part.LineSegment(App.Vector(-50, -135, 0), App.Vector(-50, -110, 0)), False)
sketch8.addConstraint(Sketcher.Constraint("Coincident", 0, 2, 1, 1))
sketch8.addConstraint(Sketcher.Constraint("Coincident", 1, 2, 2, 1))
sketch8.addConstraint(Sketcher.Constraint("Coincident", 2, 2, 3, 1))
sketch8.addConstraint(Sketcher.Constraint("Coincident", 3, 2, 0, 1))
sketch8.addConstraint(Sketcher.Constraint("Horizontal", 0))
sketch8.addConstraint(Sketcher.Constraint("Vertical", 1))
sketch8.addConstraint(Sketcher.Constraint("Horizontal", 2))
sketch8.addConstraint(Sketcher.Constraint("Vertical", 3))
sketch8.addConstraint(Sketcher.Constraint("Equal", 2, 1))
sketch8.addConstraint(Sketcher.Constraint("DistanceX", 0, 2, 0, 1, 25.0))
sketch8.addConstraint(Sketcher.Constraint("DistanceX", 0, 2, -1, 1, 75.0))
sketch8.addConstraint(Sketcher.Constraint("DistanceY", 0, 2, -1, 1, 110.0))
sketch8.setExpression("Constraints[9]", "Params.sketch8_width")
pocket7 = body.newObject("PartDesign::Pocket", "Pocket006")
pocket7.Profile = sketch8
pocket7.setExpression("Length", "Params.pocket7_length")
doc.recompute()

fillet2 = body.newObject("PartDesign::Fillet", "Fillet001")
fillet2.Base = (pocket7, edges_at(pocket7, [
    (4, -75, -110),
    (4, -50, -110),
    (4, -50, -135),
    (4, -75, -135),
]))
fillet2.setExpression("Radius", "Params.fillet2_radius")

sketch9 = body.newObject("Sketcher::SketchObject", "Sketch008")
sketch9.AttachmentSupport = (doc.getObject("YZ_Plane"), [""])
sketch9.MapMode = "FlatFace"
sketch9.AttachmentOffset = App.Placement(App.Vector(0, 0, 8), App.Rotation())
sketch9.addGeometry(Part.Circle(App.Vector(-146.301163, -168.300236, 0), App.Vector(0, 0, 1), 2), False)
sketch9.addGeometry(Part.Circle(App.Vector(-168.300236, -146.301163, 0), App.Vector(0, 0, 1), 2), False)
sketch9.addGeometry(Part.Circle(App.Vector(-168.300236, 146.301163, 0), App.Vector(0, 0, 1), 2), False)
sketch9.addGeometry(Part.Circle(App.Vector(-146.301163, 168.300236, 0), App.Vector(0, 0, 1), 2), False)
sketch9.addConstraint(Sketcher.Constraint("Equal", 0, 1))
sketch9.addConstraint(Sketcher.Constraint("Equal", 1, 2))
sketch9.addConstraint(Sketcher.Constraint("Equal", 2, 3))
sketch9.addConstraint(Sketcher.Constraint("Symmetric", 1, 3, 2, 3, -1))
sketch9.addConstraint(Sketcher.Constraint("Symmetric", 0, 3, 3, 3, -1))
sketch9.addConstraint(Sketcher.Constraint("Diameter", 0, 4.0))
sketch9.addConstraint(Sketcher.Constraint("DistanceY", 0, 3, 2, 3, 314.6014))
sketch9.addConstraint(Sketcher.Constraint("DistanceX", 0, 3, -1, 1, 146.301163))
sketch9.addConstraint(Sketcher.Constraint("DistanceY", 0, 3, -1, 1, 168.300236))
sketch9.addConstraint(Sketcher.Constraint("DistanceX", 1, 3, -1, 1, 168.300236))
sketch9.setExpression("Constraints[5]", "Params.sketch9_diameter")
pocket8 = body.newObject("PartDesign::Pocket", "Pocket007")
pocket8.Profile = sketch9
pocket8.Type = "ThroughAll"

sketch10 = body.newObject("Sketcher::SketchObject", "Sketch009")
sketch10.AttachmentSupport = (doc.getObject("YZ_Plane"), [""])
sketch10.MapMode = "FlatFace"
sketch10.AttachmentOffset = App.Placement(App.Vector(0, 0, 8), App.Rotation())
sketch10.addGeometry(Part.Circle(App.Vector(190, -100, 0), App.Vector(0, 0, 1), 2), False)
sketch10.addGeometry(Part.Circle(App.Vector(180, -120, 0), App.Vector(0, 0, 1), 2), False)
sketch10.addGeometry(Part.Circle(App.Vector(180, 120, 0), App.Vector(0, 0, 1), 2), False)
sketch10.addGeometry(Part.Circle(App.Vector(190, 100, 0), App.Vector(0, 0, 1), 2), False)
sketch10.addConstraint(Sketcher.Constraint("Equal", 0, 1))
sketch10.addConstraint(Sketcher.Constraint("Equal", 1, 2))
sketch10.addConstraint(Sketcher.Constraint("Equal", 2, 3))
sketch10.addConstraint(Sketcher.Constraint("Symmetric", 1, 3, 2, 3, -1))
sketch10.addConstraint(Sketcher.Constraint("Symmetric", 0, 3, 3, 3, -1))
sketch10.addConstraint(Sketcher.Constraint("Diameter", 0, 4.0))
sketch10.addConstraint(Sketcher.Constraint("DistanceX", -1, 1, 0, 3, 190.0))
sketch10.addConstraint(Sketcher.Constraint("DistanceY", 0, 3, -1, 1, 100.0))
sketch10.addConstraint(Sketcher.Constraint("DistanceX", -1, 1, 1, 3, 180.0))
sketch10.addConstraint(Sketcher.Constraint("DistanceY", 1, 3, -1, 1, 120.0))
sketch10.setExpression("Constraints[5]", "Params.sketch10_diameter")
pocket9 = body.newObject("PartDesign::Pocket", "Pocket008")
pocket9.Profile = sketch10
pocket9.setExpression("Length", "Params.pocket9_length")
doc.recompute()

fillet3 = body.newObject("PartDesign::Fillet", "Fillet002")
fillet3.Base = (pocket9, edges_at(pocket9, [
    (4, -70, 115),
    (4, -45, 115),
    (4, -45, 90),
    (4, -70, 90),
]))
fillet3.setExpression("Radius", "Params.fillet3_radius")

doc.recompute()
